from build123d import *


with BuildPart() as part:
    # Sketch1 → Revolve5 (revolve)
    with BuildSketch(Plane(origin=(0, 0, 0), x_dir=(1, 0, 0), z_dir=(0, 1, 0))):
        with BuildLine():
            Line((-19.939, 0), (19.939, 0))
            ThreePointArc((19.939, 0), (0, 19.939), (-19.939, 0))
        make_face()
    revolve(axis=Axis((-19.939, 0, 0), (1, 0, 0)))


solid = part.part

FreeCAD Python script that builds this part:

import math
import FreeCAD as App
import Part
import Sketcher
Q = App.Units.Quantity

doc = App.newDocument("Part")
params = doc.addObject("Spreadsheet::Sheet", "Params")
for row, (alias, value) in enumerate([
    ("sketch1_radius", "0.785 in"),
    ("revolution_angle", "360 deg"),
], start=1):
    params.set(f"A{row}", alias)
    params.set(f"B{row}", "=" + value)
    params.setAlias(f"B{row}", alias)

body = doc.addObject("PartDesign::Body", "Body")

# Sketch on XZ plane
sketch1 = body.newObject("Sketcher::SketchObject", "Sketch")
sketch1.AttachmentSupport = (doc.getObject("XZ_Plane"), [""])
sketch1.MapMode = "FlatFace"
sketch1.addGeometry(Part.LineSegment(App.Vector(-19.939, 0, 0), App.Vector(19.939, 0, 0)), False)
sketch1.addGeometry(Part.ArcOfCircle(Part.Circle(App.Vector(0, 0, 0), App.Vector(0, 0, 1), 19.939), math.radians(180), math.radians(360)), False)
sketch1.addConstraint(Sketcher.Constraint("Coincident", 0, 1, 1, 1))
sketch1.addConstraint(Sketcher.Constraint("Coincident", 1, 2, 0, 2))
sketch1.addConstraint(Sketcher.Constraint("Horizontal", 0))
sketch1.addConstraint(Sketcher.Constraint("Coincident", 1, 3, -1, 1))
sketch1.addConstraint(Sketcher.Constraint("PointOnObject", 0, 1, -1))
sketch1.addConstraint(Sketcher.Constraint("Radius", 1, Q("0.785 in")))
sketch1.setExpression("Constraints[5]", "Params.sketch1_radius")
revolution = body.newObject("PartDesign::Revolution", "Revolution")
revolution.Profile = sketch1
revolution.ReferenceAxis = (sketch1, ["H_Axis"])
revolution.setExpression("Angle", "Params.revolution_angle")

doc.recompute()
